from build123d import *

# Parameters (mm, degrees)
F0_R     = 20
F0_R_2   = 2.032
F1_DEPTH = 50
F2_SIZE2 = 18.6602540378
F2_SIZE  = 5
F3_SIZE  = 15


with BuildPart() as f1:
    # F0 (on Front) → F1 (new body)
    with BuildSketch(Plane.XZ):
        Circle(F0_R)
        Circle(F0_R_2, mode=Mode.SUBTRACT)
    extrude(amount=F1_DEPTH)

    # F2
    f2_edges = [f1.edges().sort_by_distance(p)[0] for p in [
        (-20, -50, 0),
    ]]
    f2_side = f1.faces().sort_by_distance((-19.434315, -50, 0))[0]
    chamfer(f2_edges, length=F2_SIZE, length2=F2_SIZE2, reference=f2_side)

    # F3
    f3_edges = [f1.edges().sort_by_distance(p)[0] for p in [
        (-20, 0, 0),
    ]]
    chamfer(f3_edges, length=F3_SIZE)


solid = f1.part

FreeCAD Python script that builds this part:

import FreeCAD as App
import Part
import Sketcher
Q = App.Units.Quantity


def edges_at(feature, points):
    """Names of the edges that pass closest to the given points."""
    edges = feature.Shape.Edges
    near = lambda p: min(range(len(edges)), key=lambda i: edges[i].distToShape(Part.Vertex(*p))[0])
    return sorted({f"Edge{near(p) + 1}" for p in points})

doc = App.newDocument("Part")
body = doc.addObject("PartDesign::Body", "Body")

# Sketch on XZ plane
sketch1 = doc.addObject("Sketcher::SketchObject", "Sketch")
body.addObject(sketch1)
sketch1.AttachmentSupport = (doc.XZ_Plane, [""])
sketch1.MapMode = "FlatFace"
sketch1.addGeometry([
    Part.Circle(App.Vector(0, 0, 0), App.Vector(0, 0, 1), 20),
    Part.Circle(App.Vector(0, 0, 0), App.Vector(0, 0, 1), 2),
], False)
sketch1.addConstraint([
    Sketcher.Constraint("Coincident", 0, 3, -1, 1),
    Sketcher.Constraint("Coincident", 1, 3, -1, 1),
    Sketcher.Constraint("Diameter", 0, Q("40 mm")),
    Sketcher.Constraint("Diameter", 1, Q("4.064 mm")),
])
pad1 = doc.addObject("PartDesign::Pad", "Pad")
body.addObject(pad1)
pad1.Profile = sketch1
pad1.Length = 50
doc.recompute()

chamfer = doc.addObject("PartDesign::Chamfer", "Chamfer")
body.addObject(chamfer)
chamfer.Base = (pad1, edges_at(pad1, [(-20, -50, 0)]))
chamfer.ChamferType = "Two distances"
chamfer.Size = 5
chamfer.Size2 = 18.660254
chamfer.FlipDirection = True
doc.recompute()

chamfer2 = doc.addObject("PartDesign::Chamfer", "Chamfer001")
body.addObject(chamfer2)
chamfer2.Base = (chamfer, edges_at(chamfer, [(-20, 0, 0)]))
chamfer2.Size = 15

doc.recompute()
